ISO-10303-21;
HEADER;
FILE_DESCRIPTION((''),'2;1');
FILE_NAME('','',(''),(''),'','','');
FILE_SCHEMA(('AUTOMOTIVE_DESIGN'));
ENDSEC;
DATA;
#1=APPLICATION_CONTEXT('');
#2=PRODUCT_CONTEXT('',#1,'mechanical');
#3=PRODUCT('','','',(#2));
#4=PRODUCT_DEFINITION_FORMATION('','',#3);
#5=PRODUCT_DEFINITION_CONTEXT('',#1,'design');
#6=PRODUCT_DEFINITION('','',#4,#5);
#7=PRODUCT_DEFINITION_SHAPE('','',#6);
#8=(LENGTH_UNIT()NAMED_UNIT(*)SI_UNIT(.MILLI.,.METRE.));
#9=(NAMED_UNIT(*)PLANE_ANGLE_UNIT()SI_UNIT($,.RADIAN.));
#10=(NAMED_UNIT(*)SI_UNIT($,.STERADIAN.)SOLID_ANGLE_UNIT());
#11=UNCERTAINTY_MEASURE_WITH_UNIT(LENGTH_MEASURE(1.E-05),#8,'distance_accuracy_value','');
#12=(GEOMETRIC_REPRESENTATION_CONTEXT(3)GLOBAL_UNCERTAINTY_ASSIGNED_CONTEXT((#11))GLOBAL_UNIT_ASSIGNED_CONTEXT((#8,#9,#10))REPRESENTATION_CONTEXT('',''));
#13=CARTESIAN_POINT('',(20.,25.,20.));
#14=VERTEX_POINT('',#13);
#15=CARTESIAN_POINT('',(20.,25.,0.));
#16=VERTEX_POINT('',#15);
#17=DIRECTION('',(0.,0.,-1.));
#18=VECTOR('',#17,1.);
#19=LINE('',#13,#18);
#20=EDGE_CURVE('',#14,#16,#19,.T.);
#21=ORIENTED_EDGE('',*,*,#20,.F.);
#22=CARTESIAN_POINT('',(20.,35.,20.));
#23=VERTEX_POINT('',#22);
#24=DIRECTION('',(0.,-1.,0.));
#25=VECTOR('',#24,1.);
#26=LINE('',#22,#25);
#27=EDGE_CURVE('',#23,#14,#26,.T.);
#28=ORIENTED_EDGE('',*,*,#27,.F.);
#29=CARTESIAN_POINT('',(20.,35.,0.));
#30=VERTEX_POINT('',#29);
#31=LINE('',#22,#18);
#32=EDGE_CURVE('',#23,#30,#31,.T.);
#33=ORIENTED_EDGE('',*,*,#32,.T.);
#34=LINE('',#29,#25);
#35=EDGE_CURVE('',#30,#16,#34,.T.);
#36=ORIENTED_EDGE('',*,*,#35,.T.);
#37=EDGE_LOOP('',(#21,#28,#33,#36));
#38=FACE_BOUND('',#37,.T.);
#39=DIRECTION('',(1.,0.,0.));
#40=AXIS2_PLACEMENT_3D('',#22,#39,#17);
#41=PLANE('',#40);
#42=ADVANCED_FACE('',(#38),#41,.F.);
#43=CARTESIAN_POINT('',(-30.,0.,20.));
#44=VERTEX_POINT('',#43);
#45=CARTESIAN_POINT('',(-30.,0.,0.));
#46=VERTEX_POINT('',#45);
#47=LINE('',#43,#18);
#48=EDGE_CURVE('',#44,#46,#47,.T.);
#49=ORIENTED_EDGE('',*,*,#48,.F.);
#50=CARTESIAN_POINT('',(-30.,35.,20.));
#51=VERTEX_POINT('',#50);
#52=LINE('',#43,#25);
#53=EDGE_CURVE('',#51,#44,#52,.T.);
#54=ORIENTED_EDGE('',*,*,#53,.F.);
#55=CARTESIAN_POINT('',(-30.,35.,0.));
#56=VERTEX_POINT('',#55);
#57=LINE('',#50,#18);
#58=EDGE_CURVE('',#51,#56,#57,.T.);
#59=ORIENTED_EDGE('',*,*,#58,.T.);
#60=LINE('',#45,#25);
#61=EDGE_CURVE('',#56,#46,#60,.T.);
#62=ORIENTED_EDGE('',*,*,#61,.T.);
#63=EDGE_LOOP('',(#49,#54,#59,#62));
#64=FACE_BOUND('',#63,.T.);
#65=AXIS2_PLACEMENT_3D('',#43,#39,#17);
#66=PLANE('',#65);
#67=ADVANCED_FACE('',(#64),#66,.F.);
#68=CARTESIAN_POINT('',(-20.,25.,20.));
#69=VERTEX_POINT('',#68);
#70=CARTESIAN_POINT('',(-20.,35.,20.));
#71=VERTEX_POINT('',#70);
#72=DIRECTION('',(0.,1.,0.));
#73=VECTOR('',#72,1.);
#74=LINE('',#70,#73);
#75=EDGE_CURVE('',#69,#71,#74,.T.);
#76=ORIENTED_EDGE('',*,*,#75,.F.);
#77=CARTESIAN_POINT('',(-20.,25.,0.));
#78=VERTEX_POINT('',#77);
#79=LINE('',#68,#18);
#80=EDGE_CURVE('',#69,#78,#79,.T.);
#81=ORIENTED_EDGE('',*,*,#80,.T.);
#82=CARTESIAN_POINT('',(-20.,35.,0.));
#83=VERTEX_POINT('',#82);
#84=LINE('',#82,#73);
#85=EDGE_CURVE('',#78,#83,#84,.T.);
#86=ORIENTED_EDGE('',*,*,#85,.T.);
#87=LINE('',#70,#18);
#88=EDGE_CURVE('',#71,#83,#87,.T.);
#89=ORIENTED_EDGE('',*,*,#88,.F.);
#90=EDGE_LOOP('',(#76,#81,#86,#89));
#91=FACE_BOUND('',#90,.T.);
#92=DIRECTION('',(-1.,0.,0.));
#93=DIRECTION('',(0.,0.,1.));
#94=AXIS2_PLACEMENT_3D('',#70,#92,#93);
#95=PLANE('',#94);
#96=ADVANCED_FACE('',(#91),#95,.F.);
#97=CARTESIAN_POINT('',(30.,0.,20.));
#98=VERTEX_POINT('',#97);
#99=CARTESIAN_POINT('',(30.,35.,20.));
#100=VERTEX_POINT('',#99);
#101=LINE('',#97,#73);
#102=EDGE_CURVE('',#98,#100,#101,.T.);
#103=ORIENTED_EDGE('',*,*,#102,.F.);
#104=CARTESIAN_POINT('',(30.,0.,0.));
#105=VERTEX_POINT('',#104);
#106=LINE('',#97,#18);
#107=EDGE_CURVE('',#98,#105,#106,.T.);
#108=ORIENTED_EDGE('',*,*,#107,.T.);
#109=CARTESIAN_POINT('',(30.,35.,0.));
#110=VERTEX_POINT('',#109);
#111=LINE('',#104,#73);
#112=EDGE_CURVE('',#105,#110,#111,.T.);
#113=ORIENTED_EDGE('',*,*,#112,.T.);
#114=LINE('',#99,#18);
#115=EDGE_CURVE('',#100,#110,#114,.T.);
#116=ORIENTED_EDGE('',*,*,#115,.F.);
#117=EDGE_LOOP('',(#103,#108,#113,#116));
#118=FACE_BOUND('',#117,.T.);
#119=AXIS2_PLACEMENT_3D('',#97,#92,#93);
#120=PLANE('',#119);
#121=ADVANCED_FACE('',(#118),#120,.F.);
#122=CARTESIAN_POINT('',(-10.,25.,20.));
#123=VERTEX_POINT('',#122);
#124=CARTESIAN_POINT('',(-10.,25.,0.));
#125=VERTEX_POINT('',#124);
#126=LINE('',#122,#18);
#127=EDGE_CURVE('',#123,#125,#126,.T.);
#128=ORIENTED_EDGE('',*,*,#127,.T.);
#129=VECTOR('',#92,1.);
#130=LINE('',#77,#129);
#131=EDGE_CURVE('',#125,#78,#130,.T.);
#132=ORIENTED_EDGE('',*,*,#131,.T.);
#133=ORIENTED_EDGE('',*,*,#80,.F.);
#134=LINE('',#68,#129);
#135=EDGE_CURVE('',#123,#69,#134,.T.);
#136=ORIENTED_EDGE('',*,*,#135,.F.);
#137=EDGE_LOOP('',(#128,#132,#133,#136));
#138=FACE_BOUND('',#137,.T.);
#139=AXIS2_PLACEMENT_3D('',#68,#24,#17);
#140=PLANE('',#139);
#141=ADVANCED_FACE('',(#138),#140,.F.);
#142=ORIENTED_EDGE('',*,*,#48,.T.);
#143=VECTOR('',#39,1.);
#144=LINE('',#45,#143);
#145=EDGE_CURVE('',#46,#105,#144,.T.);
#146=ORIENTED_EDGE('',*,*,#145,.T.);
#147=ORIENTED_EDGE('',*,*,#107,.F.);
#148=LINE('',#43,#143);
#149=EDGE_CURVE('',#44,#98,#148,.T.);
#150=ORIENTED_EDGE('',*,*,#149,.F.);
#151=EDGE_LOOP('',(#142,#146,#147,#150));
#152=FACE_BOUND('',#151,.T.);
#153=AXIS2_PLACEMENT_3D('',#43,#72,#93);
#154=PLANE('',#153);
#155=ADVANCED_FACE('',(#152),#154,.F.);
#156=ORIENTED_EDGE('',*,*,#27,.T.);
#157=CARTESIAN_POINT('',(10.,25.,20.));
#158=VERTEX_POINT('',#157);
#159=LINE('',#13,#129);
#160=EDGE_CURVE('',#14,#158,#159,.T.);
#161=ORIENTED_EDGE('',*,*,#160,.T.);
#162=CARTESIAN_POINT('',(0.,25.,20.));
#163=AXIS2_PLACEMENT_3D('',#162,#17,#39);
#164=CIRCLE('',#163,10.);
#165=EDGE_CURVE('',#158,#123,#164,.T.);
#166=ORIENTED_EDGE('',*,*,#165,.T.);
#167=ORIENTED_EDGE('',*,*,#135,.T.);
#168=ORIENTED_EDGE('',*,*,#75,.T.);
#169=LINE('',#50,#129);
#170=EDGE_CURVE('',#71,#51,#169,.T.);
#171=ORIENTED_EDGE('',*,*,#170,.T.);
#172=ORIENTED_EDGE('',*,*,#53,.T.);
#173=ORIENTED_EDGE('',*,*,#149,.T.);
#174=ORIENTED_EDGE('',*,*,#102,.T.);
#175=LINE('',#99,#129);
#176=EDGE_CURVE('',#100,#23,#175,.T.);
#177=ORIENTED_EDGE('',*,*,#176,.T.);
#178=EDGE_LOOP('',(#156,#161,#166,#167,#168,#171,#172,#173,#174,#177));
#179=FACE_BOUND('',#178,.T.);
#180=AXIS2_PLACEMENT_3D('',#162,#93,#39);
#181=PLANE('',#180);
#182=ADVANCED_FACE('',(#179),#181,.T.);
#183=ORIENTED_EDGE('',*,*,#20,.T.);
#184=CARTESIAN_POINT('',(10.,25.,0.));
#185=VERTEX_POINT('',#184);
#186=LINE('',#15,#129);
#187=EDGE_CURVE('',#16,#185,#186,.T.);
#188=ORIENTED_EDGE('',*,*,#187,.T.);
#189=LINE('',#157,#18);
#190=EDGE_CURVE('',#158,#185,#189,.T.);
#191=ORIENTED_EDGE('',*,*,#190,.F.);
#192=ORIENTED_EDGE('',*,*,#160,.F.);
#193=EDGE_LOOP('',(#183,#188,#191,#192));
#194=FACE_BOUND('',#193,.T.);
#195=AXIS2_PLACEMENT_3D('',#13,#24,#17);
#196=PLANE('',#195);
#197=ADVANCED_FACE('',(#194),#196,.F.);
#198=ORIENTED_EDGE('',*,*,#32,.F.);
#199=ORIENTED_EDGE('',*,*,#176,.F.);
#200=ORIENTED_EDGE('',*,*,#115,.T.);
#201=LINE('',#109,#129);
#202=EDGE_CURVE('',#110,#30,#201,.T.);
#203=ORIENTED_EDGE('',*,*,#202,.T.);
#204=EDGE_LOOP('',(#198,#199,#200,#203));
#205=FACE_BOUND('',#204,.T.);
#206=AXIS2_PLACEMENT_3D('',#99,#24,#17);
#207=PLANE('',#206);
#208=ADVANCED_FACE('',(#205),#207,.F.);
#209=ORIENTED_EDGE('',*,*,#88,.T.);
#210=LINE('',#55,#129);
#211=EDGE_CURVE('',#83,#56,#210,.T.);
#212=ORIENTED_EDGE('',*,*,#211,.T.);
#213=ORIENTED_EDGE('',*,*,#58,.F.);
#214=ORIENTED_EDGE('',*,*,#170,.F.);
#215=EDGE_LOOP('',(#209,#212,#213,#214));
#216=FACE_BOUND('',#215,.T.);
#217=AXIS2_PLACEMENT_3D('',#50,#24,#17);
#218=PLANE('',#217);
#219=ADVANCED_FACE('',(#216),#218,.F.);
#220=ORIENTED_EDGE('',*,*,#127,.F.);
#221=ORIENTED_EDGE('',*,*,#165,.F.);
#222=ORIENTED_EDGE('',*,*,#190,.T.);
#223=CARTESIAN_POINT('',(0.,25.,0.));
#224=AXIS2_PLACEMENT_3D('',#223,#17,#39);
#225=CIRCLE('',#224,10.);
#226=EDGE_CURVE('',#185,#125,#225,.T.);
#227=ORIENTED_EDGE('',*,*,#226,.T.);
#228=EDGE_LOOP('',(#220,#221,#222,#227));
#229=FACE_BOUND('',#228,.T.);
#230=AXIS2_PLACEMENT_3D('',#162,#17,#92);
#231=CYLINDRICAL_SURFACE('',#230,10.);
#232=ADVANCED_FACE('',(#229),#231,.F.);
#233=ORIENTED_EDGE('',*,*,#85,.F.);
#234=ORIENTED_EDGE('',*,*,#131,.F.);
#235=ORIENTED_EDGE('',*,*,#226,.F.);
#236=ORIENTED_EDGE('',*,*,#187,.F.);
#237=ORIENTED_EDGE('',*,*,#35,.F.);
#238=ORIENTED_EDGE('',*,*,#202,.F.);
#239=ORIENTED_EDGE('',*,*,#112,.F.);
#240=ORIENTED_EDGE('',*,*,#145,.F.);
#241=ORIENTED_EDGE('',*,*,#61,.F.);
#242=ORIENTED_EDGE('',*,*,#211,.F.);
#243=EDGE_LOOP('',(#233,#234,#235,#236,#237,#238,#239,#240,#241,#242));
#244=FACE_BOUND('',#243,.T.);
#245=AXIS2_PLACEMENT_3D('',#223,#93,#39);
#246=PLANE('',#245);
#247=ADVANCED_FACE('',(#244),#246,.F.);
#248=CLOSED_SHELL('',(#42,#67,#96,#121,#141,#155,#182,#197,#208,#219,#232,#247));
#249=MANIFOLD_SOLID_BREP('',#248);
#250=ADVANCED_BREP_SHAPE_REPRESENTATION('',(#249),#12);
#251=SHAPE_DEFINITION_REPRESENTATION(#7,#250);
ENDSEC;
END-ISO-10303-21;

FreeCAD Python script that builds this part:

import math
import FreeCAD as App
import Part
import Sketcher
from FreeCAD import Vector

doc = App.newDocument("Part")
body = doc.addObject("PartDesign::Body", "Body")

sketch1 = doc.addObject("Sketcher::SketchObject", "Sketch")
body.addObject(sketch1)
sketch1.AttachmentSupport = (doc.XY_Plane, [""])
sketch1.MapMode = "FlatFace"
sketch1.addGeometry(Part.LineSegment(Vector(-30, 0, 0), Vector(30, 0, 0)), False)
sketch1.addGeometry(Part.LineSegment(Vector(30, 0, 0), Vector(30, 35, 0)), False)
sketch1.addGeometry(Part.LineSegment(Vector(30, 35, 0), Vector(20, 35, 0)), False)
sketch1.addGeometry(Part.LineSegment(Vector(20, 35, 0), Vector(20, 25, 0)), False)
sketch1.addGeometry(Part.LineSegment(Vector(20, 25, 0), Vector(10, 25, 0)), False)
sketch1.addGeometry(Part.ArcOfCircle(Part.Circle(Vector(0, 25, 0), Vector(0, 0, 1), 10), math.radians(180), math.radians(360)), False)
sketch1.addGeometry(Part.LineSegment(Vector(-10, 25, 0), Vector(-20, 25, 0)), False)
sketch1.addGeometry(Part.LineSegment(Vector(-20, 25, 0), Vector(-20, 35, 0)), False)
sketch1.addGeometry(Part.LineSegment(Vector(-20, 35, 0), Vector(-30, 35, 0)), False)
sketch1.addGeometry(Part.LineSegment(Vector(-30, 35, 0), Vector(-30, 0, 0)), False)
sketch1.addConstraint(Sketcher.Constraint("Coincident", 0, 2, 1, 1))
sketch1.addConstraint(Sketcher.Constraint("Coincident", 1, 2, 2, 1))
sketch1.addConstraint(Sketcher.Constraint("Coincident", 2, 2, 3, 1))
sketch1.addConstraint(Sketcher.Constraint("Coincident", 3, 2, 4, 1))
sketch1.addConstraint(Sketcher.Constraint("Coincident", 4, 2, 5, 2))
sketch1.addConstraint(Sketcher.Constraint("Coincident", 5, 1, 6, 1))
sketch1.addConstraint(Sketcher.Constraint("Coincident", 6, 2, 7, 1))
sketch1.addConstraint(Sketcher.Constraint("Coincident", 7, 2, 8, 1))
sketch1.addConstraint(Sketcher.Constraint("Coincident", 8, 2, 9, 1))
sketch1.addConstraint(Sketcher.Constraint("Coincident", 9, 2, 0, 1))
sketch1.addConstraint(Sketcher.Constraint("Horizontal", 0))
sketch1.addConstraint(Sketcher.Constraint("Vertical", 1))
sketch1.addConstraint(Sketcher.Constraint("Horizontal", 2))
sketch1.addConstraint(Sketcher.Constraint("Vertical", 3))
sketch1.addConstraint(Sketcher.Constraint("Horizontal", 4))
sketch1.addConstraint(Sketcher.Constraint("Horizontal", 6))
sketch1.addConstraint(Sketcher.Constraint("Vertical", 7))
sketch1.addConstraint(Sketcher.Constraint("Horizontal", 8))
sketch1.addConstraint(Sketcher.Constraint("Vertical", 9))
sketch1.addConstraint(Sketcher.Constraint("Symmetric", 0, 2, 9, 2, -1, 1))
sketch1.addConstraint(Sketcher.Constraint("Symmetric", 4, 2, 5, 1, -2))
sketch1.addConstraint(Sketcher.Constraint("Symmetric", 2, 2, 7, 2, -2))
sketch1.addConstraint(Sketcher.Constraint("Horizontal", 5, 3, 3, 2))
sketch1.addConstraint(Sketcher.Constraint("Equal", 2, 4))
sketch1.addConstraint(Sketcher.Constraint("Equal", 8, 3))
sketch1.addConstraint(Sketcher.Constraint("Radius", 5, 10.0))
sketch1.addConstraint(Sketcher.Constraint("DistanceX", 0, 1, 0, 2, 60.0))
sketch1.addConstraint(Sketcher.Constraint("DistanceY", 1, 1, 1, 2, 35.0))
pad1 = doc.addObject("PartDesign::Pad", "Pad")
body.addObject(pad1)
pad1.Profile = sketch1
pad1.Length = 20

doc.recompute()
